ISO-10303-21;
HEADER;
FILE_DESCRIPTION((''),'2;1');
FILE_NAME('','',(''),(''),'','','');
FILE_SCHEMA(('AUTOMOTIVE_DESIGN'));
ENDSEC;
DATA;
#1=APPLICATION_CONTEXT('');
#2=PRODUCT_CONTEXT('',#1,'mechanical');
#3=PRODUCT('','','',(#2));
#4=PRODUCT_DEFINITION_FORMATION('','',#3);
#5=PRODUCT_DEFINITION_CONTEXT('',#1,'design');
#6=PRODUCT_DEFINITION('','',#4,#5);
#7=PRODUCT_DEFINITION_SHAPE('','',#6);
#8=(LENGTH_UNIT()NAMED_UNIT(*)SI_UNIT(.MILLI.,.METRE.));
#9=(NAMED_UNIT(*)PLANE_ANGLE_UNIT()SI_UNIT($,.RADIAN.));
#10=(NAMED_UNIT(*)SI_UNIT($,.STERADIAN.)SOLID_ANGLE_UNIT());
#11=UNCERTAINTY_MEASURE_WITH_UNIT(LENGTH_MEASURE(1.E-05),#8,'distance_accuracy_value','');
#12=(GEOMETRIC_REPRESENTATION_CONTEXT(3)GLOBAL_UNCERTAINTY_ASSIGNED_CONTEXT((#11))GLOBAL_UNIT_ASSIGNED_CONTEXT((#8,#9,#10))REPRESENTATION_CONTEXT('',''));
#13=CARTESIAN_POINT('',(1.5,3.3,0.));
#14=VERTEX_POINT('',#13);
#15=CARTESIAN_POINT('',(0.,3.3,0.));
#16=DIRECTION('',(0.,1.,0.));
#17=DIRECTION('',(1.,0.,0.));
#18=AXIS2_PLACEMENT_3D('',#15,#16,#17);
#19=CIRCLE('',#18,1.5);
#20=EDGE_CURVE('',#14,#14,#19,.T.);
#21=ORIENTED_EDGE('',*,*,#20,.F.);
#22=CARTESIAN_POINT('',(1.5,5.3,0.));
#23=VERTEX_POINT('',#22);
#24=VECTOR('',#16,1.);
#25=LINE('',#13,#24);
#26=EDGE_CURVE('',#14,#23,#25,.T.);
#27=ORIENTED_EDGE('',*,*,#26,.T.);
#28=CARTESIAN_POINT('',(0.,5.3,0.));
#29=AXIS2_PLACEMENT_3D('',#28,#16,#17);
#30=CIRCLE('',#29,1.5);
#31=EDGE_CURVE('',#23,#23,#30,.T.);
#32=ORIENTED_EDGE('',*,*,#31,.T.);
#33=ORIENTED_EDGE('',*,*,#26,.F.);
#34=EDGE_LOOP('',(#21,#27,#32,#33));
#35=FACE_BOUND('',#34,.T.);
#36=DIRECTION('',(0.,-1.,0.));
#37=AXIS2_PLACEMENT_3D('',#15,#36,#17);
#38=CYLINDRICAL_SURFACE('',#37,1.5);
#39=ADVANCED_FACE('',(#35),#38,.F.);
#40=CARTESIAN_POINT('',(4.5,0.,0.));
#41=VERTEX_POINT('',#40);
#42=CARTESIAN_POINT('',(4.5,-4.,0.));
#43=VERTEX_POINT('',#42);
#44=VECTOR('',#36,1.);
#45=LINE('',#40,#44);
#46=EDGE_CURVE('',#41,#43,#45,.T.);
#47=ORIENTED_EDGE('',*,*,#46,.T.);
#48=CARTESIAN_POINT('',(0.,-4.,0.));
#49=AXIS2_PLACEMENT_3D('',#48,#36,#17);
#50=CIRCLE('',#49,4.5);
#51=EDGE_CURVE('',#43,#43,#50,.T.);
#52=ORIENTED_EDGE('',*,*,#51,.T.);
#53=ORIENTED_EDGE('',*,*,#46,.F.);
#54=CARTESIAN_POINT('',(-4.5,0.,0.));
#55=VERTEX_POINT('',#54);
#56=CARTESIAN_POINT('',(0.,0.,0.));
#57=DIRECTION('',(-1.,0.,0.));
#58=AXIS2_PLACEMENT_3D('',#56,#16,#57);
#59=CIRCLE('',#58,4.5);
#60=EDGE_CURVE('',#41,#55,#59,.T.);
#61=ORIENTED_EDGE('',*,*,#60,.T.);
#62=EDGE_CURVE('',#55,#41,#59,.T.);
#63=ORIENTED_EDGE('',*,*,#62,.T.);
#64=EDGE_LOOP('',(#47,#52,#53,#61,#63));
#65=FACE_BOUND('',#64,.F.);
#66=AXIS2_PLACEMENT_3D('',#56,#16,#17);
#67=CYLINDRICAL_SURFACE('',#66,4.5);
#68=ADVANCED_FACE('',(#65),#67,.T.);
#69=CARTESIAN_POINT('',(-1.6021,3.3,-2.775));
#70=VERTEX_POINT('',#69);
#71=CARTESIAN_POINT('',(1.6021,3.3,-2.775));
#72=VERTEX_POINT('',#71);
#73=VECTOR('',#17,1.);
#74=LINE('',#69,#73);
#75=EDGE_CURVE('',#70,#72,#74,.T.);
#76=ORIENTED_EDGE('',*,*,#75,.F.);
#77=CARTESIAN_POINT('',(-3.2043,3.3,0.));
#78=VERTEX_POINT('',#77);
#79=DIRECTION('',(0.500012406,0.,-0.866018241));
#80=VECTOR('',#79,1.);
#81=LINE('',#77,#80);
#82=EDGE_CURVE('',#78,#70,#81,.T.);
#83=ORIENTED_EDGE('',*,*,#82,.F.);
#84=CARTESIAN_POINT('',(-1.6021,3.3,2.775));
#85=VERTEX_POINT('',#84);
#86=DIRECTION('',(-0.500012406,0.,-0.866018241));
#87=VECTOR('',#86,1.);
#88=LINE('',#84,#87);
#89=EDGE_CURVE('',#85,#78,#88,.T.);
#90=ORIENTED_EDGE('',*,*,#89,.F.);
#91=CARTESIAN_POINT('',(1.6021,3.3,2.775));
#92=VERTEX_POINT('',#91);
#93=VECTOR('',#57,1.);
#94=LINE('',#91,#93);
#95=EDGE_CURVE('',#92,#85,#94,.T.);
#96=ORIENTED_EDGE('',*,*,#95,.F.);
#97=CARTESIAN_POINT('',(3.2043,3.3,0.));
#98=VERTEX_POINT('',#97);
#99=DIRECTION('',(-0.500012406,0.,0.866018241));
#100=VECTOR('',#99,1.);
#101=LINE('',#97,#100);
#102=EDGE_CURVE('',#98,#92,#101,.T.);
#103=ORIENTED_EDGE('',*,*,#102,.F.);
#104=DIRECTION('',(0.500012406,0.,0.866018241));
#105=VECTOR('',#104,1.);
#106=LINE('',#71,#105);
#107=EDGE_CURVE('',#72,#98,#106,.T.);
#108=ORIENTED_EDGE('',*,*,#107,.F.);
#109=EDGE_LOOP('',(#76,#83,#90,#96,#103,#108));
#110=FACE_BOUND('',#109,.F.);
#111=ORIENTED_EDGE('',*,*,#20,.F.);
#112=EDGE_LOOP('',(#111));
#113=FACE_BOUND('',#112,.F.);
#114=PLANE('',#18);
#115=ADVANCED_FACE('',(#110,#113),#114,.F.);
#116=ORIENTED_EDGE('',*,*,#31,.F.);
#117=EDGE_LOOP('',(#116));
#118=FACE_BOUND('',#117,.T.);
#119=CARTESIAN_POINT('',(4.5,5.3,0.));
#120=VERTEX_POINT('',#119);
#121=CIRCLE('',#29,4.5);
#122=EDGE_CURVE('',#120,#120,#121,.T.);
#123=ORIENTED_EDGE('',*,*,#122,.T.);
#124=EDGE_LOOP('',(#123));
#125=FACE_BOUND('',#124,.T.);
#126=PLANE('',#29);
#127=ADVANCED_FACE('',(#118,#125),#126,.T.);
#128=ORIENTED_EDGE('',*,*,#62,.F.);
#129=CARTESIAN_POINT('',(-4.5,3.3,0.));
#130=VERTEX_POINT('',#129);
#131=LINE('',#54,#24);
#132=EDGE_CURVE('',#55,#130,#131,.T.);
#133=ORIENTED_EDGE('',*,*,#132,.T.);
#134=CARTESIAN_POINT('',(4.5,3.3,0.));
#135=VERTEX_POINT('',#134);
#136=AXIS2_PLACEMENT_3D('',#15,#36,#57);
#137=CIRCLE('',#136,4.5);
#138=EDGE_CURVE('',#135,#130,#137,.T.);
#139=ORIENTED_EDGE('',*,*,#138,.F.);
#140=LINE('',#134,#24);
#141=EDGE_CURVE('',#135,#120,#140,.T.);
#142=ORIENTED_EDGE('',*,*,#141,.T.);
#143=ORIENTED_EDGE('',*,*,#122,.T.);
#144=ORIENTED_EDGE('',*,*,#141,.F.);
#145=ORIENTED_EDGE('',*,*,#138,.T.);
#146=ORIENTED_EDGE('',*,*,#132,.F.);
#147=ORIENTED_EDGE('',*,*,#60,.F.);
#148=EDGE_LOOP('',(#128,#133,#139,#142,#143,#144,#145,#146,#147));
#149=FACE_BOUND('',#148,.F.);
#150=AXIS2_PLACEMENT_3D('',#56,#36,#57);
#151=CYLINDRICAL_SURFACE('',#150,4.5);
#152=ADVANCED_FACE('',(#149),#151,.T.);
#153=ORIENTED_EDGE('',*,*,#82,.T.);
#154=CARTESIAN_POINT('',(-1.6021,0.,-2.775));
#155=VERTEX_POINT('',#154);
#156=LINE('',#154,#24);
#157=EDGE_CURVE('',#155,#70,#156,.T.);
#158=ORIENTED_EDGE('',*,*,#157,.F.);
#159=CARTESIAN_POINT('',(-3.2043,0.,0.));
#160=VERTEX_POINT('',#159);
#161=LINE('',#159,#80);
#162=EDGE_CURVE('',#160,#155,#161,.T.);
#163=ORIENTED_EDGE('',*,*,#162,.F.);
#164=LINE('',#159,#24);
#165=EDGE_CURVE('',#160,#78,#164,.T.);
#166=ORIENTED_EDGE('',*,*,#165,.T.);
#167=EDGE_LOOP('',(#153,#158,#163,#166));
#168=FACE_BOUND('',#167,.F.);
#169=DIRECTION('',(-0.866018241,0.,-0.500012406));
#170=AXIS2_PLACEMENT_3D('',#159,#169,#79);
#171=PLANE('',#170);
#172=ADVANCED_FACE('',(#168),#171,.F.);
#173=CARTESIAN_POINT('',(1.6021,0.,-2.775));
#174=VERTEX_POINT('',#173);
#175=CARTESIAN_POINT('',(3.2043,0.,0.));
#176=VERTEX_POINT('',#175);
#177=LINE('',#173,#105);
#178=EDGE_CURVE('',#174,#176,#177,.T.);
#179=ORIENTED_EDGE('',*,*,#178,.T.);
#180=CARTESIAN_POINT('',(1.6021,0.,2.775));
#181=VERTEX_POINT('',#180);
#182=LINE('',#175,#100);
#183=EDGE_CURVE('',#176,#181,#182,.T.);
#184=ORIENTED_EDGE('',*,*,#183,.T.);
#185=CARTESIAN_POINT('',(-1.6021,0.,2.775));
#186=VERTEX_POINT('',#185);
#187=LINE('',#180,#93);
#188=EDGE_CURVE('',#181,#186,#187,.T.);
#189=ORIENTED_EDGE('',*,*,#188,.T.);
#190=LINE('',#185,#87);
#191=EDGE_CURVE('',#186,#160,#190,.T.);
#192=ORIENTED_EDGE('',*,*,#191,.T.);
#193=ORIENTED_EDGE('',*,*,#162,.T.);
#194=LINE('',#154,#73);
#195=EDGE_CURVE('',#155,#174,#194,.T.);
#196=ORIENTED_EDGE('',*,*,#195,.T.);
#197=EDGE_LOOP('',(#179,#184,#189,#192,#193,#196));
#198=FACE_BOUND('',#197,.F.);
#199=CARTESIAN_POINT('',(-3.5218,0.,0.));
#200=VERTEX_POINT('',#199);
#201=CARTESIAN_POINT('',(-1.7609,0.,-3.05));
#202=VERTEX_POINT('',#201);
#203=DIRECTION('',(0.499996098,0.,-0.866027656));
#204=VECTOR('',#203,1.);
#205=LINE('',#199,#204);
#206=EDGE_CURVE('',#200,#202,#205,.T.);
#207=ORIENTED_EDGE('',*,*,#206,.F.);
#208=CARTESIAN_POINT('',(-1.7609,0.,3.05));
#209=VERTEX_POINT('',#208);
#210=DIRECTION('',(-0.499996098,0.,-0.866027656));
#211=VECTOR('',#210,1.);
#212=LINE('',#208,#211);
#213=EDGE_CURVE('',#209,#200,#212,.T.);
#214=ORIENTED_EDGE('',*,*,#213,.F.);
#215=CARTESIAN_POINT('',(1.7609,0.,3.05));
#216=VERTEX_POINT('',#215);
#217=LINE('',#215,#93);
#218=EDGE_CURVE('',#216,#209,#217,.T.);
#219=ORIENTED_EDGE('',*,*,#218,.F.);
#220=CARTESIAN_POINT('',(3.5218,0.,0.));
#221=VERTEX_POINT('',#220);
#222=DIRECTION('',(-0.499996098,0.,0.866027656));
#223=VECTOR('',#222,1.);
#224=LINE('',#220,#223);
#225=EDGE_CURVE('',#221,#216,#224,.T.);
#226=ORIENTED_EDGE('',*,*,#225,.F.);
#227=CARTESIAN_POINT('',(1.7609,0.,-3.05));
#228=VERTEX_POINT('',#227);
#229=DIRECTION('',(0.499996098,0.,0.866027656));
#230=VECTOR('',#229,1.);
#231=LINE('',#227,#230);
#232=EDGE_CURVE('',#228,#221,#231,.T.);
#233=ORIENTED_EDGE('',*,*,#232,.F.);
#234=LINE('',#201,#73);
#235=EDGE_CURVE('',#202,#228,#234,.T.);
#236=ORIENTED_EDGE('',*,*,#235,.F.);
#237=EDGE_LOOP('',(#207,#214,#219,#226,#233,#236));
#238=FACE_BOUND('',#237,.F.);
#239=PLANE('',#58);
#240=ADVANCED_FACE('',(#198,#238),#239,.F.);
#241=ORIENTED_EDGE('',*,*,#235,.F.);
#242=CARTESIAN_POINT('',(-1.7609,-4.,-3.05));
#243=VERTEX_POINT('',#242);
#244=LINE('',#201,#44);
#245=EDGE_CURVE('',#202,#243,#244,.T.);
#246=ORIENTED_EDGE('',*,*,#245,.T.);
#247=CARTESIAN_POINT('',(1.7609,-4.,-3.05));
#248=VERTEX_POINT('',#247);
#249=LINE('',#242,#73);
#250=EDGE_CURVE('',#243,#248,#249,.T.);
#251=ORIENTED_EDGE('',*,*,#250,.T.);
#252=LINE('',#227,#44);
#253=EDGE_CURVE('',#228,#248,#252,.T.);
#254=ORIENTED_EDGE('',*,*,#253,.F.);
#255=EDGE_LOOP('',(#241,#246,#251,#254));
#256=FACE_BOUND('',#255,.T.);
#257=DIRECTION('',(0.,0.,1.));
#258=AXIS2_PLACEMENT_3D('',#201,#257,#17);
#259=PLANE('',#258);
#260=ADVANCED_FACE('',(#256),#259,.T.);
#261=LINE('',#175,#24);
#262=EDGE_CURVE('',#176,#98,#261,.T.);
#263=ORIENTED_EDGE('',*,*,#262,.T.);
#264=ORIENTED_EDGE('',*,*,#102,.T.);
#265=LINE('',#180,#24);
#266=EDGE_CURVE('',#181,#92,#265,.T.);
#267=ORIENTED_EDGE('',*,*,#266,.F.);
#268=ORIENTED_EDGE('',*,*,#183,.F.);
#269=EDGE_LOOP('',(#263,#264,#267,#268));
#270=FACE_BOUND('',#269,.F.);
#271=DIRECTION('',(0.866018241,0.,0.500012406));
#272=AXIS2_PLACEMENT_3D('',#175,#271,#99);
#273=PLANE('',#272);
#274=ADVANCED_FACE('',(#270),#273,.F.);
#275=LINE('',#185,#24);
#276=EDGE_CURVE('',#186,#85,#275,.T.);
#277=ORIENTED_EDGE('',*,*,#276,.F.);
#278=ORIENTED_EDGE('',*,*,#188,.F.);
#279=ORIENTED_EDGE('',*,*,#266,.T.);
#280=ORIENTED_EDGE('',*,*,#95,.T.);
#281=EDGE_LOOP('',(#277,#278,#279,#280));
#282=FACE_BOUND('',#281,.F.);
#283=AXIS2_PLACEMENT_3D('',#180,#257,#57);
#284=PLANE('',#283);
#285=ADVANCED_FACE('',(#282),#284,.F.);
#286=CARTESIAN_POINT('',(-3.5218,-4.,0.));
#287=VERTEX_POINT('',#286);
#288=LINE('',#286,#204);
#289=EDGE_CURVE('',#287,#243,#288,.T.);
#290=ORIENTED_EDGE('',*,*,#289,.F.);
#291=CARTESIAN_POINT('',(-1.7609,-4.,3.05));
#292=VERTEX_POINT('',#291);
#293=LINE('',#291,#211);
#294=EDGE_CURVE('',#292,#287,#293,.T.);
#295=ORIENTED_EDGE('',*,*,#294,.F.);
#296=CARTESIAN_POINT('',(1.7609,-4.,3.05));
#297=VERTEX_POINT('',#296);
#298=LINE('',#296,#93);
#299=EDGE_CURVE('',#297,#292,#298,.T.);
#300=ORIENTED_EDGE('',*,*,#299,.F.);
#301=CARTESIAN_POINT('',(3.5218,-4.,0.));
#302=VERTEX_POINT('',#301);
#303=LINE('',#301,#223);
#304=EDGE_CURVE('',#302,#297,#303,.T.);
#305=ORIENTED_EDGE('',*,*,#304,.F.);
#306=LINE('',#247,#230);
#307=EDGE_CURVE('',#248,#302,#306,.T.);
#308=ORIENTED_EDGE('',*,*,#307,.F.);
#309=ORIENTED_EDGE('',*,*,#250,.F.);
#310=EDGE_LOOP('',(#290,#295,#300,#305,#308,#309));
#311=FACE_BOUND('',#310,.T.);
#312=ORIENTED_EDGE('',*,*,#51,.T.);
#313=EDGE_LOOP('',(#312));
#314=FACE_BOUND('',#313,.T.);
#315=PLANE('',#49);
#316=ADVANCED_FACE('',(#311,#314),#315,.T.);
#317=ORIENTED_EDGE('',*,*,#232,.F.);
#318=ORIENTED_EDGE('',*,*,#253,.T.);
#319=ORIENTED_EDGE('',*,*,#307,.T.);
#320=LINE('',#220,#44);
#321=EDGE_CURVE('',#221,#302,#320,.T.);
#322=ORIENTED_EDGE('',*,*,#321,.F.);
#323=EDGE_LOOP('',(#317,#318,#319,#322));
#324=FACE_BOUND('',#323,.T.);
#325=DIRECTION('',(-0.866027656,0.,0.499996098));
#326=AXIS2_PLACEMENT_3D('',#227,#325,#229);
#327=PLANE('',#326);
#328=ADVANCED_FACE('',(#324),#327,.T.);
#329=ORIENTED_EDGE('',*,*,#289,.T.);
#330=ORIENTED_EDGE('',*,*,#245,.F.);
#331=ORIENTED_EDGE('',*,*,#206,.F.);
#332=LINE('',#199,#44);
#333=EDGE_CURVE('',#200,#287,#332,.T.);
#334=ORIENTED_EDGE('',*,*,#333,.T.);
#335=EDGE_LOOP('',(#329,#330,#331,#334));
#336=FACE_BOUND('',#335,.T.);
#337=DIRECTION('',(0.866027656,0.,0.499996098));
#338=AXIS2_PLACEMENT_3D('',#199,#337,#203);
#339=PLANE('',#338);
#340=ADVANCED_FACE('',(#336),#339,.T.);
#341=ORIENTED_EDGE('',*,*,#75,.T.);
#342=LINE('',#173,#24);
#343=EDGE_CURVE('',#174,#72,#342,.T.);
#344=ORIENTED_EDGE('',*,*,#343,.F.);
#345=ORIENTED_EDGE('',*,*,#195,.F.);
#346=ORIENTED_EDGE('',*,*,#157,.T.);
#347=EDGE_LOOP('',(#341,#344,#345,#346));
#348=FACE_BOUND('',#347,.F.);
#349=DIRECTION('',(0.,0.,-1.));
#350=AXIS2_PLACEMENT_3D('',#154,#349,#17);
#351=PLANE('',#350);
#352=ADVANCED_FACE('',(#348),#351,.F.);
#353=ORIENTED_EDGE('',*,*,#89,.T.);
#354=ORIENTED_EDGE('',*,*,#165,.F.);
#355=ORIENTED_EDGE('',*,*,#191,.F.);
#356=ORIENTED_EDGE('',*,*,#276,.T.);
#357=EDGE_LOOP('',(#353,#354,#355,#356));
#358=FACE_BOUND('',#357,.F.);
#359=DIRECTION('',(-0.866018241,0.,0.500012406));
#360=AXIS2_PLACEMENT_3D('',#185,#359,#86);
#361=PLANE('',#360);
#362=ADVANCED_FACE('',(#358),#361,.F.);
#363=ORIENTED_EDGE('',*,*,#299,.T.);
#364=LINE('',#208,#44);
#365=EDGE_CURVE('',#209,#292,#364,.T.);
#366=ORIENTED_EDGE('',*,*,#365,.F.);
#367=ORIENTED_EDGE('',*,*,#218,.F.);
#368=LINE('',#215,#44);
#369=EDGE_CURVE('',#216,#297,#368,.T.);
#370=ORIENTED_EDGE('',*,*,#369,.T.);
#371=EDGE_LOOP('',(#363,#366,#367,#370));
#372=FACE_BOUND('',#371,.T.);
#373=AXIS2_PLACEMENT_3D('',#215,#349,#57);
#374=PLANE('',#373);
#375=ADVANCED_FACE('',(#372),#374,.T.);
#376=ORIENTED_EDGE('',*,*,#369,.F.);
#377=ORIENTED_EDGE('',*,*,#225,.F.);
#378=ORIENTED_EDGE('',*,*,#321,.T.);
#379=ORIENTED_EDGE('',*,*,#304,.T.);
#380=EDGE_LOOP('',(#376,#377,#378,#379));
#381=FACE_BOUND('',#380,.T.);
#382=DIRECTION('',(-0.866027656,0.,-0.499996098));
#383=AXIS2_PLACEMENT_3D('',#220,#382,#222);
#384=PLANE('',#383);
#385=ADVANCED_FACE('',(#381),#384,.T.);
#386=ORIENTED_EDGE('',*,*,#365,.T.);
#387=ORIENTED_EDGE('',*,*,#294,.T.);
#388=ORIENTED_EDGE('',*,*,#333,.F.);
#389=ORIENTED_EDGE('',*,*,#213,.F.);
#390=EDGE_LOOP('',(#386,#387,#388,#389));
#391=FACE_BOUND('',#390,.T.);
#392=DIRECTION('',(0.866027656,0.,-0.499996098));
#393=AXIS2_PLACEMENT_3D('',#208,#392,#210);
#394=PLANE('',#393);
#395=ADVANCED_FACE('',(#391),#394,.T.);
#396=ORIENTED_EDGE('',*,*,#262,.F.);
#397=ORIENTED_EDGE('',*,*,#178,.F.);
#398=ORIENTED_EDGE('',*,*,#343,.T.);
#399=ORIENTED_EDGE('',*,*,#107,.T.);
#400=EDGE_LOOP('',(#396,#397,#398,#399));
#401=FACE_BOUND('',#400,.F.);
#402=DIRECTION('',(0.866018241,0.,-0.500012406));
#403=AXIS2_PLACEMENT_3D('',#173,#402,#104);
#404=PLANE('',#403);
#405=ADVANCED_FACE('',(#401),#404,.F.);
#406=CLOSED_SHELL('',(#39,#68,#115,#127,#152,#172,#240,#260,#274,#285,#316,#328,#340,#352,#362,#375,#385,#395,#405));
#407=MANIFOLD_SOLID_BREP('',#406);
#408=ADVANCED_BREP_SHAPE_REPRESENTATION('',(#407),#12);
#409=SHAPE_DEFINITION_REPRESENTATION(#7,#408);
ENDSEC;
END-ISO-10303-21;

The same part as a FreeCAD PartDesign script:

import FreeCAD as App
import Part
import Sketcher
Q = App.Units.Quantity

doc = App.newDocument("Part")
body = doc.addObject("PartDesign::Body", "Body")

# Sketch on XZ plane
sketch1 = doc.addObject("Sketcher::SketchObject", "Sketch")
body.addObject(sketch1)
sketch1.AttachmentSupport = (doc.XZ_Plane, [""])
sketch1.MapMode = "FlatFace"
sketch1.addGeometry([
    Part.Circle(App.Vector(0, 0, 0), App.Vector(0, 0, 1), 4.5),  # 0
    Part.LineSegment(App.Vector(1.6021, -2.775, 0), App.Vector(3.2043, 0, 0)),  # 1
    Part.LineSegment(App.Vector(3.2043, 0, 0), App.Vector(1.6021, 2.775, 0)),  # 2
    Part.LineSegment(App.Vector(1.6021, 2.775, 0), App.Vector(-1.6021, 2.775, 0)),  # 3
    Part.LineSegment(App.Vector(-1.6021, 2.775, 0), App.Vector(-3.2043, 0, 0)),  # 4
    Part.LineSegment(App.Vector(-3.2043, 0, 0), App.Vector(-1.6021, -2.775, 0)),  # 5
    Part.LineSegment(App.Vector(-1.6021, -2.775, 0), App.Vector(1.6021, -2.775, 0)),  # 6
], False)
sketch1.addConstraint([
    Sketcher.Constraint("Coincident", 1, 2, 2, 1),
    Sketcher.Constraint("Coincident", 2, 2, 3, 1),
    Sketcher.Constraint("Coincident", 3, 2, 4, 1),
    Sketcher.Constraint("Coincident", 4, 2, 5, 1),
    Sketcher.Constraint("Coincident", 5, 2, 6, 1),
    Sketcher.Constraint("Coincident", 6, 2, 1, 1),
    Sketcher.Constraint("Horizontal", 3),
    Sketcher.Constraint("Horizontal", 6),
    Sketcher.Constraint("Coincident", 0, 3, -1, 1),
    Sketcher.Constraint("Symmetric", 1, 2, 4, 2, -1, 1),
    Sketcher.Constraint("Symmetric", 2, 2, 5, 2, -1, 1),
    Sketcher.Constraint("PointOnObject", 1, 2, -1),
    Sketcher.Constraint("Parallel", 1, 4),
    Sketcher.Constraint("Vertical", 3, 2, 5, 2),
    Sketcher.Constraint("Diameter", 0, 9.0),
    Sketcher.Constraint("Angle", 1, Q("59.9992 deg")),
    Sketcher.Constraint("DistanceY", 5, 2, 3, 2, 5.55),
    Sketcher.Constraint("DistanceX", 3, 2, 3, 1, 3.2042),
])
pad1 = doc.addObject("PartDesign::Pad", "Pad")
body.addObject(pad1)
pad1.Profile = sketch1
pad1.Length = 3.3
pad1.Reversed = True

# Sketch on XZ plane
sketch2 = doc.addObject("Sketcher::SketchObject", "Sketch001")
body.addObject(sketch2)
sketch2.AttachmentSupport = (doc.XZ_Plane, [""])
sketch2.MapMode = "FlatFace"
sketch2.AttachmentOffset = App.Placement(App.Vector(0, 0, -3.3), App.Rotation())
sketch2.addGeometry([
    Part.Circle(App.Vector(0, 0, 0), App.Vector(0, 0, 1), 4.5),
    Part.Circle(App.Vector(0, 0, 0), App.Vector(0, 0, 1), 1.5),
], False)
sketch2.addConstraint([
    Sketcher.Constraint("Coincident", 0, 3, -1, 1),
    Sketcher.Constraint("Coincident", 1, 3, -1, 1),
    Sketcher.Constraint("Diameter", 1, 3.0),
    Sketcher.Constraint("Diameter", 0, 9.0),
])
pad2 = doc.addObject("PartDesign::Pad", "Pad001")
body.addObject(pad2)
pad2.Profile = sketch2
pad2.Length = 2
pad2.Reversed = True

# Sketch on XZ plane
sketch3 = doc.addObject("Sketcher::SketchObject", "Sketch002")
body.addObject(sketch3)
sketch3.AttachmentSupport = (doc.XZ_Plane, [""])
sketch3.MapMode = "FlatFace"
sketch3.addGeometry([
    Part.Circle(App.Vector(0, 0, 0), App.Vector(0, 0, 1), 4.5),  # 0
    Part.LineSegment(App.Vector(1.7609, 3.05, 0), App.Vector(3.5218, 0, 0)),  # 1
    Part.LineSegment(App.Vector(3.5218, 0, 0), App.Vector(1.7609, -3.05, 0)),  # 2
    Part.LineSegment(App.Vector(1.7609, -3.05, 0), App.Vector(-1.7609, -3.05, 0)),  # 3
    Part.LineSegment(App.Vector(-1.7609, -3.05, 0), App.Vector(-3.5218, 0, 0)),  # 4
    Part.LineSegment(App.Vector(-3.5218, 0, 0), App.Vector(-1.7609, 3.05, 0)),  # 5
    Part.LineSegment(App.Vector(-1.7609, 3.05, 0), App.Vector(1.7609, 3.05, 0)),  # 6
], False)
sketch3.addConstraint([
    Sketcher.Constraint("Coincident", 1, 2, 2, 1),
    Sketcher.Constraint("Coincident", 2, 2, 3, 1),
    Sketcher.Constraint("Coincident", 3, 2, 4, 1),
    Sketcher.Constraint("Coincident", 4, 2, 5, 1),
    Sketcher.Constraint("Coincident", 5, 2, 6, 1),
    Sketcher.Constraint("Coincident", 6, 2, 1, 1),
    Sketcher.Constraint("Horizontal", 3),
    Sketcher.Constraint("Horizontal", 6),
    Sketcher.Constraint("Coincident", 0, 3, -1, 1),
    Sketcher.Constraint("Symmetric", 1, 2, 4, 2, -1, 1),
    Sketcher.Constraint("Symmetric", 2, 2, 5, 2, -1, 1),
    Sketcher.Constraint("PointOnObject", 1, 2, -1),
    Sketcher.Constraint("Parallel", 1, 4),
    Sketcher.Constraint("Vertical", 3, 2, 5, 2),
    Sketcher.Constraint("Diameter", 0, 9.0),
    Sketcher.Constraint("DistanceY", 3, 2, 5, 2, 6.1),
    Sketcher.Constraint("Angle", 1, Q("-60.0003 deg")),
    Sketcher.Constraint("DistanceX", 3, 2, 3, 1, 3.5218),
])
pad3 = doc.addObject("PartDesign::Pad", "Pad002")
body.addObject(pad3)
pad3.Profile = sketch3
pad3.Length = 4

doc.recompute()
